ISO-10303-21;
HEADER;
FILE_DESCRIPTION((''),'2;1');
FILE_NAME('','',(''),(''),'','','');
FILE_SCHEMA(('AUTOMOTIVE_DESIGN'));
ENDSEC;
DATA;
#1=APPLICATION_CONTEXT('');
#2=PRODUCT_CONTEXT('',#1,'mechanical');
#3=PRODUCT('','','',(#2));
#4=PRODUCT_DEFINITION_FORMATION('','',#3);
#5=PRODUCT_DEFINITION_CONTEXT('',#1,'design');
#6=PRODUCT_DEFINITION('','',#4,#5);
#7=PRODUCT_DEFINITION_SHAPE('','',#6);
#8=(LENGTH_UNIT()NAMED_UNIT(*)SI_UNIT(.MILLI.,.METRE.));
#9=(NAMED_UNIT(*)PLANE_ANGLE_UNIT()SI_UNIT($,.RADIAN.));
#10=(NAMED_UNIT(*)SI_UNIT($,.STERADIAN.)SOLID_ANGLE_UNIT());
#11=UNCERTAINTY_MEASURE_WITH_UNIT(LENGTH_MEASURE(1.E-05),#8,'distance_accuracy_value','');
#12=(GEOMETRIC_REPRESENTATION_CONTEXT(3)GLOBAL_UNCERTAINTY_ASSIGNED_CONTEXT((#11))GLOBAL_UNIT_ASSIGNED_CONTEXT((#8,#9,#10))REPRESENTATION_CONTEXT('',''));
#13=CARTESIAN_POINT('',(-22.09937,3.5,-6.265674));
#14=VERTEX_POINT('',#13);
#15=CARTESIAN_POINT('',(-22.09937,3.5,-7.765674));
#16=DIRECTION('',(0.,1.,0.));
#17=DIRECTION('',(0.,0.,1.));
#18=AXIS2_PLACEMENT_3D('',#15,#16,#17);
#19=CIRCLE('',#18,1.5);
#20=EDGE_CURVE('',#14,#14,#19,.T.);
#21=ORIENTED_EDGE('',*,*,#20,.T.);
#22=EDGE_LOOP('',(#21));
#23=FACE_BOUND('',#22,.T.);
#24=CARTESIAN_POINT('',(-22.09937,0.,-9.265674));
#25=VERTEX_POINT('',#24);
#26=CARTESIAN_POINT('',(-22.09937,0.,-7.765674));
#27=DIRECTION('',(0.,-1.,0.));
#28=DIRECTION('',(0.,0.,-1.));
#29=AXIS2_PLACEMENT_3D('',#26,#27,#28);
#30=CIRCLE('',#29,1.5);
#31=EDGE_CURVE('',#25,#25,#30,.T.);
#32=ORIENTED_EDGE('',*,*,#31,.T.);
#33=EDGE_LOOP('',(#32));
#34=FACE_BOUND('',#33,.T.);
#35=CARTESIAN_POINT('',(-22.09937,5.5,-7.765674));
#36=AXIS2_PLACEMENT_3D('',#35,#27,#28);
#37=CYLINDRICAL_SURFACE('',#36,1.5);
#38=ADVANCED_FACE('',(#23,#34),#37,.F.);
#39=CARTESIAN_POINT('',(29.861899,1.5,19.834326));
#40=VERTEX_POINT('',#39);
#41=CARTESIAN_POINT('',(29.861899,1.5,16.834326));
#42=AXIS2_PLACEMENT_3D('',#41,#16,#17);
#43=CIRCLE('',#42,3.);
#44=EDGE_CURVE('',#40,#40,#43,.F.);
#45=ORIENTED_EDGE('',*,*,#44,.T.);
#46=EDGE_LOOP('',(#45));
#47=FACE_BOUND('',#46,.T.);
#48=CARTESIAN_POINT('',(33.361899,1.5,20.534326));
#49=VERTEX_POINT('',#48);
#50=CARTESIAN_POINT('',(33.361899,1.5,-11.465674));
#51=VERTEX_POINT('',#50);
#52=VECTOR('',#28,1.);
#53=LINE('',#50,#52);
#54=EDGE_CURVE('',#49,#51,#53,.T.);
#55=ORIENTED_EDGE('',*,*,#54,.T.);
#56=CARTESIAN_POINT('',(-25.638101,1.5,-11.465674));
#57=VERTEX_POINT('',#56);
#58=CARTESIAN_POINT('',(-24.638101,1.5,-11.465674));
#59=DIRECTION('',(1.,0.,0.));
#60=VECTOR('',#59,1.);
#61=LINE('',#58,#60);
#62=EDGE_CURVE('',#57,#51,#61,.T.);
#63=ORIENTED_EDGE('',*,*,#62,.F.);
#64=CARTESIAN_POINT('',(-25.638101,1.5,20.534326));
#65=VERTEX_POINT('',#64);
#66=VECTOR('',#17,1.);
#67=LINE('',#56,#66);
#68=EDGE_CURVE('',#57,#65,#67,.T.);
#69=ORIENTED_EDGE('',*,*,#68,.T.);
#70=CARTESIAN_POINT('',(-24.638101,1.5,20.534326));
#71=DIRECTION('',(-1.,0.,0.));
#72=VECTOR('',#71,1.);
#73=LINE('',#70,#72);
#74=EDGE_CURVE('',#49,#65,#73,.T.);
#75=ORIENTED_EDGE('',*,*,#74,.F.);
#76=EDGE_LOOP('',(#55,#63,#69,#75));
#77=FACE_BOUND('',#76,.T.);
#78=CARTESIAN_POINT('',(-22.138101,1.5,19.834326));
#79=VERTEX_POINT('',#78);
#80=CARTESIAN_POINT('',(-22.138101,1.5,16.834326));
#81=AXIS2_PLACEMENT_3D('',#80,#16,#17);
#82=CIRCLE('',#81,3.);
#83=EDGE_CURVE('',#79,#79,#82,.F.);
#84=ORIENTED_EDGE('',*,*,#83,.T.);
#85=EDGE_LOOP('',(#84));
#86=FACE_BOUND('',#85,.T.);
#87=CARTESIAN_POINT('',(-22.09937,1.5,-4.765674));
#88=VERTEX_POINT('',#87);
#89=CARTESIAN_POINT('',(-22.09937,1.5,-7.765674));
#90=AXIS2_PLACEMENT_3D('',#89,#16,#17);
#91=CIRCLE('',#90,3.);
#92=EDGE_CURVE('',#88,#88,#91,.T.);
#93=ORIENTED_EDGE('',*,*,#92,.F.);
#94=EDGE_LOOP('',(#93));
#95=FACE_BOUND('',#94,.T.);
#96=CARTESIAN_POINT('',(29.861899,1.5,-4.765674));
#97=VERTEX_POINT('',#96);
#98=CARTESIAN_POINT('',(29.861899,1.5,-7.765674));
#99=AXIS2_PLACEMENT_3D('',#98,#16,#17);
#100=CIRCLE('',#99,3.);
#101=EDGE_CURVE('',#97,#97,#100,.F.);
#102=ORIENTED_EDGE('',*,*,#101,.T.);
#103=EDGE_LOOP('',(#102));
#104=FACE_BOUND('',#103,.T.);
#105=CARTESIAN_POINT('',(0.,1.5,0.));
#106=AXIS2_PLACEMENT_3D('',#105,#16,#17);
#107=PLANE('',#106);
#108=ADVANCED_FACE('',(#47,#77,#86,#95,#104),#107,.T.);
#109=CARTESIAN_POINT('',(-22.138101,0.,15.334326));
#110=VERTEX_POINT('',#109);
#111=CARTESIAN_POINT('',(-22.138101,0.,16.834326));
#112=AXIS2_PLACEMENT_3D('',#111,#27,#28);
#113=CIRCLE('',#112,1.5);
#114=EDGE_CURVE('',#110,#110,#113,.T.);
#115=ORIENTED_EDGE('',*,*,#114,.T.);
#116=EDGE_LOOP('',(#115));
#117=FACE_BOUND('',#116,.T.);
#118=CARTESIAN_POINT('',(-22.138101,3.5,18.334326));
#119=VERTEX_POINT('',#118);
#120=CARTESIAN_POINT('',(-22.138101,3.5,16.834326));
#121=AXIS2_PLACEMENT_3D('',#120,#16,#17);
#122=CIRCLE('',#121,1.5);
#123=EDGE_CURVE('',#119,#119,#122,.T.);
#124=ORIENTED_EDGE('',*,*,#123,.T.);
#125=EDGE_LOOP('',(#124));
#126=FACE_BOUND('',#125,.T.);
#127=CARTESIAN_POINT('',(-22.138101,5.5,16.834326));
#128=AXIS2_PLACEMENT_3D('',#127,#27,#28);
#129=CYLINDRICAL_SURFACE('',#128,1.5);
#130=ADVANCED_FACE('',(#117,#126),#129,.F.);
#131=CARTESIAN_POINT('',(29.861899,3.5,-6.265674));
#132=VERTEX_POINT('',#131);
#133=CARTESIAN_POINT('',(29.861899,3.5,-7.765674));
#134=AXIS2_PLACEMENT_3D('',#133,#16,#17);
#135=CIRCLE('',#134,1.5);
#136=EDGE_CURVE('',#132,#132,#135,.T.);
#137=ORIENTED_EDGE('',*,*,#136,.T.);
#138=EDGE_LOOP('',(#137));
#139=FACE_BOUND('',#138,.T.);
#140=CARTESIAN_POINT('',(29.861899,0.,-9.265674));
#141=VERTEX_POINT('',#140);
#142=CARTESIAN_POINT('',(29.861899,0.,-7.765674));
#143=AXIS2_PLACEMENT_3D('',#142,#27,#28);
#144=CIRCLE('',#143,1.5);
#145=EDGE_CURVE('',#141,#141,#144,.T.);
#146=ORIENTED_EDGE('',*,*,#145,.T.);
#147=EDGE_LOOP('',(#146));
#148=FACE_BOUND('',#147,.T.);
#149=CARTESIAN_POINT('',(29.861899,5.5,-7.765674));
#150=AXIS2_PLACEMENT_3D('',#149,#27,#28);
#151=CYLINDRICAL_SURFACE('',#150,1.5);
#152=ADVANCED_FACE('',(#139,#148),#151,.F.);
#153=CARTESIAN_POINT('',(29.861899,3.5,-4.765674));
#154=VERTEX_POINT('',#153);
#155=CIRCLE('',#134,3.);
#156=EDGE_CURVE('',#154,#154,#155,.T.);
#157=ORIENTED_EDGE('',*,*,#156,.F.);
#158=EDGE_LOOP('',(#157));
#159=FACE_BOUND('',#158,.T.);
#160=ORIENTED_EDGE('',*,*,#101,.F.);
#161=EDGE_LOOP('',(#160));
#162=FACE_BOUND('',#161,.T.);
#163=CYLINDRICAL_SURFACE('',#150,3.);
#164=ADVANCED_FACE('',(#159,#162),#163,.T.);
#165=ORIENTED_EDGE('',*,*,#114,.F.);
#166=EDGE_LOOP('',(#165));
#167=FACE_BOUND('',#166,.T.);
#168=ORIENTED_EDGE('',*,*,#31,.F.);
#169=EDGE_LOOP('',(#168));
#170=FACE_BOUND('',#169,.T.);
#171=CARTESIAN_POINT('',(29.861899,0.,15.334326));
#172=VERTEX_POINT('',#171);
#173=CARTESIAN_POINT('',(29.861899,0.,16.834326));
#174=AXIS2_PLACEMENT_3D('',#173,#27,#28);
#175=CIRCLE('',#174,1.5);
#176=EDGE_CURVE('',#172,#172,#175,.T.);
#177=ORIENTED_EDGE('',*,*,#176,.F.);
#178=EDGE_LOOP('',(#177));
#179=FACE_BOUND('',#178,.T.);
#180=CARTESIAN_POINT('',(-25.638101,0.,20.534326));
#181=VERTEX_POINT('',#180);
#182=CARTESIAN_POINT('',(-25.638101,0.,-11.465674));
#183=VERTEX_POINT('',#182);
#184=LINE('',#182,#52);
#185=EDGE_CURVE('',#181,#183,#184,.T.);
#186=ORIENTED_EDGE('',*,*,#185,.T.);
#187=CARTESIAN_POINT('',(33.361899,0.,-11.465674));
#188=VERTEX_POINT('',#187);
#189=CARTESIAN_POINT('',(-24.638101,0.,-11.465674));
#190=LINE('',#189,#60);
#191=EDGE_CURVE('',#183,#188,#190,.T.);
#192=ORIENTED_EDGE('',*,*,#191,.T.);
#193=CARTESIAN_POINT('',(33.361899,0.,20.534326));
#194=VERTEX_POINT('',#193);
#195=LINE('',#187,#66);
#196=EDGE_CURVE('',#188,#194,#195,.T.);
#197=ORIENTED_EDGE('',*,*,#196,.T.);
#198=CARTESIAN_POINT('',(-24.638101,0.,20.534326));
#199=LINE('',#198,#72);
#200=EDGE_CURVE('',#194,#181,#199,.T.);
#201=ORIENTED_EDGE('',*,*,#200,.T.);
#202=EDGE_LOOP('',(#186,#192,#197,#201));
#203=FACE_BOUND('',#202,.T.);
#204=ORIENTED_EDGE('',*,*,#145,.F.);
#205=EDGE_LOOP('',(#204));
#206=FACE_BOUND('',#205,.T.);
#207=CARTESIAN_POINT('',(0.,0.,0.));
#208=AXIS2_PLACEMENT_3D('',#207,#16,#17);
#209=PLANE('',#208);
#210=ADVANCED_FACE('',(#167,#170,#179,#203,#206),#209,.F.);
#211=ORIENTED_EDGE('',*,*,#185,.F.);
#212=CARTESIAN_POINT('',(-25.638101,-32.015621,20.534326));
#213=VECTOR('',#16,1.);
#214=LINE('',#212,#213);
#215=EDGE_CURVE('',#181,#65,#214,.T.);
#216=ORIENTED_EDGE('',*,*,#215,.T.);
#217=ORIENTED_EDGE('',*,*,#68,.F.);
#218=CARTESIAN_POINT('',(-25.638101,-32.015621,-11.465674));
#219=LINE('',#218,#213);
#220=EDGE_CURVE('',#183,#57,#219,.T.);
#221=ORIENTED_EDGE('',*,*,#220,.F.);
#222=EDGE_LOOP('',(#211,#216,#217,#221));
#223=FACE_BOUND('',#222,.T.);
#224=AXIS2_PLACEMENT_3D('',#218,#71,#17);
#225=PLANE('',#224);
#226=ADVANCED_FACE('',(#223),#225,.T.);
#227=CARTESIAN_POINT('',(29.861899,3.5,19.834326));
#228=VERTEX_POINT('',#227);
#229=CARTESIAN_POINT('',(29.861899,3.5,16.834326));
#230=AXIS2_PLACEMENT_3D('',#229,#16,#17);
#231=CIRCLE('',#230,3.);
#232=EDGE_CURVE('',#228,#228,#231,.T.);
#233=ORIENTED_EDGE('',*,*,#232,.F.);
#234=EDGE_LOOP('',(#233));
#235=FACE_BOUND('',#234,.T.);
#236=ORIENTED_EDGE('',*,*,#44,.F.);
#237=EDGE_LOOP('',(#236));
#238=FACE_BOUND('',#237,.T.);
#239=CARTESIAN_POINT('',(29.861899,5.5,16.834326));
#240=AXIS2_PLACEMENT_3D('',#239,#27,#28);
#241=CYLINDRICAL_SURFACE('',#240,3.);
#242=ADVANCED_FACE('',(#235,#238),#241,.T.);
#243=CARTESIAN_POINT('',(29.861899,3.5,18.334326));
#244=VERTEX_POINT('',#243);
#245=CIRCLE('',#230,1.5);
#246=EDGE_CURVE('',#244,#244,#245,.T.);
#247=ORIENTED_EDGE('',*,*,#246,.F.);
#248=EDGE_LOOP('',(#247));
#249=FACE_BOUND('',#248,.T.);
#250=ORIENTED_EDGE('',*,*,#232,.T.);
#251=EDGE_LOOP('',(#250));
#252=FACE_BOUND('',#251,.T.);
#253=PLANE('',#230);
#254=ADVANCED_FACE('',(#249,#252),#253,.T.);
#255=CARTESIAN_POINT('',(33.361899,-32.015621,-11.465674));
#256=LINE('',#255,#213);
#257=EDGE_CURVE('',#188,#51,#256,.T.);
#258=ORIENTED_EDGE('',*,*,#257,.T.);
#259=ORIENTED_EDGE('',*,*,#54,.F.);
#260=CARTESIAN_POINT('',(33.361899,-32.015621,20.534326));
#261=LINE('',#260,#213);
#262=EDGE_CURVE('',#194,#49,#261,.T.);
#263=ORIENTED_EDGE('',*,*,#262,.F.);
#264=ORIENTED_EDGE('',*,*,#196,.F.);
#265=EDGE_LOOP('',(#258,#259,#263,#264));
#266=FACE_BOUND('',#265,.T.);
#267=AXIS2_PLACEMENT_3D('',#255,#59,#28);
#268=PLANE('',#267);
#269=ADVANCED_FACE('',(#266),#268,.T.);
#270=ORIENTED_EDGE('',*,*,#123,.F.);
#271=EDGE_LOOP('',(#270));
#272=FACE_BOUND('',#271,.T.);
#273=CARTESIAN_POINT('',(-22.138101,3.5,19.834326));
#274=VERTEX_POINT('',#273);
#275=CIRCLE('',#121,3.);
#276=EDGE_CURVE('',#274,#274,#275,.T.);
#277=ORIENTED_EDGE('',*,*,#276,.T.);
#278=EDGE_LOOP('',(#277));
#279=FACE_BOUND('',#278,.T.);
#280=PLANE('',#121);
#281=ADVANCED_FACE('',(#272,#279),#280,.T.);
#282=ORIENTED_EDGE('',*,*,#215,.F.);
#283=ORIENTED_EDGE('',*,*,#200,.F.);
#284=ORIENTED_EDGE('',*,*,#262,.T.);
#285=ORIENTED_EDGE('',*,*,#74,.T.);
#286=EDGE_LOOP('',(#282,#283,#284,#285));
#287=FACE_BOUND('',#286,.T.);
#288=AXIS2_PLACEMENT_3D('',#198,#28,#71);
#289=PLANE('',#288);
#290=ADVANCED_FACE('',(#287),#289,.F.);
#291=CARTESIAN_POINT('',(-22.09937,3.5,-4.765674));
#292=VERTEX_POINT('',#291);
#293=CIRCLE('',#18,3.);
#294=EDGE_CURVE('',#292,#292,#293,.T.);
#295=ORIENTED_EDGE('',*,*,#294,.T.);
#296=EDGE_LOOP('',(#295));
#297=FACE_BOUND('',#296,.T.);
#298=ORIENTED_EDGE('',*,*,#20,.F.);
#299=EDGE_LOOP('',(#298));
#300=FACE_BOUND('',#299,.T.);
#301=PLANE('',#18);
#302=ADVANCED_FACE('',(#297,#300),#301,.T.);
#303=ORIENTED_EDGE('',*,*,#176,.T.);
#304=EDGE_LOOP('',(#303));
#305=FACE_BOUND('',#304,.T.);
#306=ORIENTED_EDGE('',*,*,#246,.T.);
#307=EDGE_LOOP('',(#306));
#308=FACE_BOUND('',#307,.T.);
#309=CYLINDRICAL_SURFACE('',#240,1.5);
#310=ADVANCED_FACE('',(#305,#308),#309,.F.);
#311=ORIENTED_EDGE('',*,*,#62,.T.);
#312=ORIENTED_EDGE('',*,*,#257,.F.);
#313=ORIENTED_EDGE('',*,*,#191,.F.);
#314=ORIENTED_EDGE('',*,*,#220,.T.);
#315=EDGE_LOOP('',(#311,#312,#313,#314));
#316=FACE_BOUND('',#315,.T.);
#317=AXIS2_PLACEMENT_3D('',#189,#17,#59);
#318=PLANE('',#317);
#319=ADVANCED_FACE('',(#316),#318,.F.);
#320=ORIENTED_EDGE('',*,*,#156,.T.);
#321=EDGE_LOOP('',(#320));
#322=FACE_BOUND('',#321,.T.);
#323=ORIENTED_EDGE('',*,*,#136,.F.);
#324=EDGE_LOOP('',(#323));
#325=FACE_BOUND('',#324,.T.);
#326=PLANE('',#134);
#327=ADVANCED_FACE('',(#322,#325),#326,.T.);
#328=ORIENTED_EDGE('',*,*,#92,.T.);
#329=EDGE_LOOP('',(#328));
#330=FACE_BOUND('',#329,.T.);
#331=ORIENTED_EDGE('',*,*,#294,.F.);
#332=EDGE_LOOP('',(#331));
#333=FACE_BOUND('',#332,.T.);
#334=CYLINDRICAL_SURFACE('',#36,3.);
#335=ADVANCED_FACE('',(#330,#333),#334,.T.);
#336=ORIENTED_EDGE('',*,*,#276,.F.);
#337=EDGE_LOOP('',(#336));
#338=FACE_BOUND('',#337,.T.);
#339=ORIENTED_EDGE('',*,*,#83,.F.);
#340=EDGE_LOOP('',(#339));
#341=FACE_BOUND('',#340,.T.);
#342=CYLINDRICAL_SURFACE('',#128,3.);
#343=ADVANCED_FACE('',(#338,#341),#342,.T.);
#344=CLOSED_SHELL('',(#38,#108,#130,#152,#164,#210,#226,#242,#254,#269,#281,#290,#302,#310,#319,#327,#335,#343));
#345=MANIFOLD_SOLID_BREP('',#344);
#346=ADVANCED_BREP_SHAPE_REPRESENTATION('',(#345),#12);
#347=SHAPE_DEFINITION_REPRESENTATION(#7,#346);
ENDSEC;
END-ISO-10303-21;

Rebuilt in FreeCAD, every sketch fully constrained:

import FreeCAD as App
import Part
import Sketcher


def add_polygon(sketch, points):
    """Adds a closed chain of lines whose ends are joined by coincident constraints."""
    first, n = sketch.GeometryCount, len(points)
    for a, b in zip(points, points[1:] + points[:1]):
        sketch.addGeometry(Part.LineSegment(App.Vector(*a, 0), App.Vector(*b, 0)), False)
    for i in range(n):
        sketch.addConstraint(Sketcher.Constraint("Coincident", first + i, 2, first + (i + 1) % n, 1))

doc = App.newDocument("Part")
params = doc.addObject("Spreadsheet::Sheet", "Params")
for row, (alias, value) in enumerate([
    ("sketch1_width", "57 mm"),
    ("sketch1_height", "40.4 mm"),
    ("pad1_length", "1.5 mm"),
    ("sketch2_diameter", "6 mm"),
    ("sketch2_diameter2", "3 mm"),
    ("pad2_length", "4 mm"),
    ("sketch3_width", "57 mm"),
    ("sketch3_height", "4.2 mm"),
    ("sketch4_width", "1 mm"),
    ("sketch4_height", "32 mm"),
    ("pad3_length", "1.5 mm"),
    ("sketch5_diameter", "6 mm"),
    ("sketch5_diameter2", "3 mm"),
    ("pocket2_length", "2 mm"),
    ("sketch6_diameter", "3 mm"),
], start=1):
    params.set(f"A{row}", alias)
    params.set(f"B{row}", "=" + value)
    params.setAlias(f"B{row}", alias)

body = doc.addObject("PartDesign::Body", "Body")

sketch1 = body.newObject("Sketcher::SketchObject", "Sketch")
sketch1.AttachmentSupport = (doc.getObject("XZ_Plane"), [""])
sketch1.MapMode = "FlatFace"
add_polygon(sketch1, [(-24.638101, -15.665674), (-24.638101, 24.734326), (32.361899, 24.734326), (32.361899, -15.665674)])
sketch1.addConstraint([
    Sketcher.Constraint("Vertical", 0),
    Sketcher.Constraint("Horizontal", 1),
    Sketcher.Constraint("Vertical", 2),
    Sketcher.Constraint("Horizontal", 3),
    Sketcher.Constraint("DistanceX", 1, 1, 1, 2, 57.0),
    Sketcher.Constraint("DistanceY", 0, 1, 0, 2, 40.4),
    Sketcher.Constraint("DistanceX", 0, 2, -1, 1, 24.638101),
    Sketcher.Constraint("DistanceY", -1, 1, 0, 2, 24.734326),
])
sketch1.setExpression("Constraints[8]", "Params.sketch1_width")
sketch1.setExpression("Constraints[9]", "Params.sketch1_height")
pad1 = body.newObject("PartDesign::Pad", "Pad")
pad1.Profile = sketch1
pad1.setExpression("Length", "Params.pad1_length")
pad1.Reversed = True

sketch2 = body.newObject("Sketcher::SketchObject", "Sketch001")
sketch2.AttachmentSupport = (doc.getObject("XZ_Plane"), [""])
sketch2.MapMode = "FlatFace"
sketch2.AttachmentOffset = App.Placement(App.Vector(0, 0, -1.5), App.Rotation())
sketch2.addGeometry([
    Part.Circle(App.Vector(-22.09937, -7.765674, 0), App.Vector(0, 0, 1), 3),
    Part.Circle(App.Vector(-22.09937, -7.765674, 0), App.Vector(0, 0, 1), 1.5),
    Part.Circle(App.Vector(-22.138101, 16.834326, 0), App.Vector(0, 0, 1), 3),
    Part.Circle(App.Vector(-22.138101, 16.834326, 0), App.Vector(0, 0, 1), 1.5),
    Part.Circle(App.Vector(29.861899, 16.834326, 0), App.Vector(0, 0, 1), 3),
    Part.Circle(App.Vector(29.861899, 16.834326, 0), App.Vector(0, 0, 1), 1.5),
    Part.Circle(App.Vector(29.861899, -7.765674, 0), App.Vector(0, 0, 1), 3),
    Part.Circle(App.Vector(29.861899, -7.765674, 0), App.Vector(0, 0, 1), 1.5),
], False)
sketch2.addConstraint([
    Sketcher.Constraint("Coincident", 1, 3, 0, 3),
    Sketcher.Constraint("Coincident", 3, 3, 2, 3),
    Sketcher.Constraint("Coincident", 5, 3, 4, 3),
    Sketcher.Constraint("Coincident", 7, 3, 6, 3),
    Sketcher.Constraint("Equal", 0, 2),
    Sketcher.Constraint("Equal", 1, 3),
    Sketcher.Constraint("Equal", 2, 4),
    Sketcher.Constraint("Equal", 3, 5),
    Sketcher.Constraint("Equal", 4, 6),
    Sketcher.Constraint("Equal", 5, 7),
    Sketcher.Constraint("Horizontal", 3, 3, 4, 3),
    Sketcher.Constraint("Horizontal", 1, 3, 6, 3),
    Sketcher.Constraint("Vertical", 5, 3, 6, 3),
    Sketcher.Constraint("Diameter", 0, 6.0),
    Sketcher.Constraint("Diameter", 1, 3.0),
    Sketcher.Constraint("DistanceX", 2, 3, 4, 3, 52.0),
    Sketcher.Constraint("DistanceY", 0, 3, 2, 3, 24.6),
    Sketcher.Constraint("DistanceX", 2, 3, -1, 1, 22.138101),
    Sketcher.Constraint("DistanceX", 0, 3, -1, 1, 22.09937),
    Sketcher.Constraint("DistanceY", 0, 3, -1, 1, 7.765674),
])
sketch2.setExpression("Constraints[13]", "Params.sketch2_diameter")
sketch2.setExpression("Constraints[14]", "Params.sketch2_diameter2")
pad2 = body.newObject("PartDesign::Pad", "Pad001")
pad2.Profile = sketch2
pad2.setExpression("Length", "Params.pad2_length")
pad2.Reversed = True

sketch3 = body.newObject("Sketcher::SketchObject", "Sketch002")
sketch3.AttachmentSupport = (doc.getObject("XZ_Plane"), [""])
sketch3.MapMode = "FlatFace"
sketch3.AttachmentOffset = App.Placement(App.Vector(0, 0, -1.5), App.Rotation())
add_polygon(sketch3, [(-24.638101, -15.665674), (-24.638101, -11.465674), (32.361899, -11.465674), (32.361899, -15.665674)])
add_polygon(sketch3, [(-24.638101, 20.534326), (-24.638101, 24.734326), (32.361899, 24.734326), (32.361899, 20.534326)])
sketch3.addConstraint([
    Sketcher.Constraint("Vertical", 0),
    Sketcher.Constraint("Horizontal", 1),
    Sketcher.Constraint("Vertical", 2),
    Sketcher.Constraint("Horizontal", 3),
    Sketcher.Constraint("Vertical", 4),
    Sketcher.Constraint("Horizontal", 5),
    Sketcher.Constraint("Vertical", 6),
    Sketcher.Constraint("Horizontal", 7),
    Sketcher.Constraint("Vertical", 3, 2, 4, 2),
    Sketcher.Constraint("Vertical", 2, 2, 5, 2),
    Sketcher.Constraint("Equal", 2, 4),
    Sketcher.Constraint("DistanceX", 1, 1, 1, 2, 57.0),
    Sketcher.Constraint("DistanceY", 0, 1, 0, 2, 4.2),
    Sketcher.Constraint("DistanceY", 1, 2, 6, 2, 32.0),
    Sketcher.Constraint("DistanceX", 0, 2, -1, 1, 24.638101),
    Sketcher.Constraint("DistanceY", 0, 2, -1, 1, 11.465674),
])
sketch3.setExpression("Constraints[19]", "Params.sketch3_width")
sketch3.setExpression("Constraints[20]", "Params.sketch3_height")
pocket1 = body.newObject("PartDesign::Pocket", "Pocket")
pocket1.Profile = sketch3
pocket1.Type = "ThroughAll"
pocket1.Reversed = True

sketch4 = body.newObject("Sketcher::SketchObject", "Sketch003")
sketch4.AttachmentSupport = (doc.getObject("XZ_Plane"), [""])
sketch4.MapMode = "FlatFace"
sketch4.AttachmentOffset = App.Placement(App.Vector(0, 0, -1.5), App.Rotation())
add_polygon(sketch4, [(-25.638101, -11.465674), (-25.638101, 20.534326), (-24.638101, 20.534326), (-24.638101, -11.465674)])
add_polygon(sketch4, [(32.361899, -11.465674), (32.361899, 20.534326), (33.361899, 20.534326), (33.361899, -11.465674)])
sketch4.addConstraint([
    Sketcher.Constraint("Vertical", 0),
    Sketcher.Constraint("Horizontal", 1),
    Sketcher.Constraint("Vertical", 2),
    Sketcher.Constraint("Horizontal", 3),
    Sketcher.Constraint("Vertical", 4),
    Sketcher.Constraint("Horizontal", 5),
    Sketcher.Constraint("Vertical", 6),
    Sketcher.Constraint("Horizontal", 7),
    Sketcher.Constraint("Horizontal", 1, 2, 4, 2),
    Sketcher.Constraint("Horizontal", 3, 2, 6, 2),
    Sketcher.Constraint("Equal", 3, 5),
    Sketcher.Constraint("DistanceX", 1, 1, 1, 2, 1.0),
    Sketcher.Constraint("DistanceY", 0, 1, 0, 2, 32.0),
    Sketcher.Constraint("DistanceX", 1, 2, 4, 2, 57.0),
    Sketcher.Constraint("DistanceX", 0, 2, -1, 1, 25.638101),
    Sketcher.Constraint("DistanceY", -1, 1, 0, 2, 20.534326),
])
sketch4.setExpression("Constraints[19]", "Params.sketch4_width")
sketch4.setExpression("Constraints[20]", "Params.sketch4_height")
pad3 = body.newObject("PartDesign::Pad", "Pad002")
pad3.Profile = sketch4
pad3.setExpression("Length", "Params.pad3_length")

sketch5 = body.newObject("Sketcher::SketchObject", "Sketch004")
sketch5.AttachmentSupport = (doc.getObject("XZ_Plane"), [""])
sketch5.MapMode = "FlatFace"
sketch5.AttachmentOffset = App.Placement(App.Vector(0, 0, -5.5), App.Rotation())
sketch5.addGeometry([
    Part.Circle(App.Vector(-22.138101, 16.834326, 0), App.Vector(0, 0, 1), 3),
    Part.Circle(App.Vector(29.861899, 16.834326, 0), App.Vector(0, 0, 1), 3),
    Part.Circle(App.Vector(29.861899, 16.834326, 0), App.Vector(0, 0, 1), 1.5),
    Part.Circle(App.Vector(29.861899, -7.765674, 0), App.Vector(0, 0, 1), 3),
    Part.Circle(App.Vector(29.861899, -7.765674, 0), App.Vector(0, 0, 1), 1.5),
    Part.Circle(App.Vector(-22.09937, -7.765674, 0), App.Vector(0, 0, 1), 3),
    Part.Circle(App.Vector(-22.09937, -7.765674, 0), App.Vector(0, 0, 1), 1.5),
], False)
sketch5.addConstraint([
    Sketcher.Constraint("Coincident", 2, 3, 1, 3),
    Sketcher.Constraint("Coincident", 4, 3, 3, 3),
    Sketcher.Constraint("Coincident", 6, 3, 5, 3),
    Sketcher.Constraint("Equal", 0, 1),
    Sketcher.Constraint("Equal", 1, 3),
    Sketcher.Constraint("Equal", 2, 4),
    Sketcher.Constraint("Equal", 3, 5),
    Sketcher.Constraint("Equal", 4, 6),
    Sketcher.Constraint("Horizontal", 0, 3, 1, 3),
    Sketcher.Constraint("Horizontal", 4, 3, 5, 3),
    Sketcher.Constraint("Vertical", 2, 3, 3, 3),
    Sketcher.Constraint("Diameter", 0, 6.0),
    Sketcher.Constraint("Diameter", 2, 3.0),
    Sketcher.Constraint("DistanceX", 0, 3, 1, 3, 52.0),
    Sketcher.Constraint("DistanceY", 3, 3, 1, 3, 24.6),
    Sketcher.Constraint("DistanceX", 0, 3, -1, 1, 22.138101),
    Sketcher.Constraint("DistanceX", 5, 3, -1, 1, 22.09937),
    Sketcher.Constraint("DistanceY", -1, 1, 0, 3, 16.834326),
])
sketch5.setExpression("Constraints[11]", "Params.sketch5_diameter")
sketch5.setExpression("Constraints[12]", "Params.sketch5_diameter2")
pocket2 = body.newObject("PartDesign::Pocket", "Pocket001")
pocket2.Profile = sketch5
pocket2.setExpression("Length", "Params.pocket2_length")
pocket2.Reversed = True

sketch6 = body.newObject("Sketcher::SketchObject", "Sketch005")
sketch6.AttachmentSupport = (doc.getObject("XZ_Plane"), [""])
sketch6.MapMode = "FlatFace"
sketch6.addGeometry([
    Part.Circle(App.Vector(29.861899, 16.834326, 0), App.Vector(0, 0, 1), 1.5),
    Part.Circle(App.Vector(29.861899, -7.765674, 0), App.Vector(0, 0, 1), 1.5),
    Part.Circle(App.Vector(-22.09937, -7.765674, 0), App.Vector(0, 0, 1), 1.5),
    Part.Circle(App.Vector(-22.138101, 16.834326, 0), App.Vector(0, 0, 1), 1.5),
], False)
sketch6.addConstraint([
    Sketcher.Constraint("Equal", 0, 1),
    Sketcher.Constraint("Equal", 1, 2),
    Sketcher.Constraint("Equal", 2, 3),
    Sketcher.Constraint("Horizontal", 1, 3, 2, 3),
    Sketcher.Constraint("Horizontal", 0, 3, 3, 3),
    Sketcher.Constraint("Vertical", 0, 3, 1, 3),
    Sketcher.Constraint("Diameter", 0, 3.0),
    Sketcher.Constraint("DistanceX", 3, 3, 0, 3, 52.0),
    Sketcher.Constraint("DistanceY", 1, 3, 0, 3, 24.6),
    Sketcher.Constraint("DistanceX", -1, 1, 0, 3, 29.861899),
    Sketcher.Constraint("DistanceX", 2, 3, -1, 1, 22.09937),
    Sketcher.Constraint("DistanceY", -1, 1, 0, 3, 16.834326),
])
sketch6.setExpression("Constraints[6]", "Params.sketch6_diameter")
pocket3 = body.newObject("PartDesign::Pocket", "Pocket002")
pocket3.Profile = sketch6
pocket3.Type = "ThroughAll"

doc.recompute()
